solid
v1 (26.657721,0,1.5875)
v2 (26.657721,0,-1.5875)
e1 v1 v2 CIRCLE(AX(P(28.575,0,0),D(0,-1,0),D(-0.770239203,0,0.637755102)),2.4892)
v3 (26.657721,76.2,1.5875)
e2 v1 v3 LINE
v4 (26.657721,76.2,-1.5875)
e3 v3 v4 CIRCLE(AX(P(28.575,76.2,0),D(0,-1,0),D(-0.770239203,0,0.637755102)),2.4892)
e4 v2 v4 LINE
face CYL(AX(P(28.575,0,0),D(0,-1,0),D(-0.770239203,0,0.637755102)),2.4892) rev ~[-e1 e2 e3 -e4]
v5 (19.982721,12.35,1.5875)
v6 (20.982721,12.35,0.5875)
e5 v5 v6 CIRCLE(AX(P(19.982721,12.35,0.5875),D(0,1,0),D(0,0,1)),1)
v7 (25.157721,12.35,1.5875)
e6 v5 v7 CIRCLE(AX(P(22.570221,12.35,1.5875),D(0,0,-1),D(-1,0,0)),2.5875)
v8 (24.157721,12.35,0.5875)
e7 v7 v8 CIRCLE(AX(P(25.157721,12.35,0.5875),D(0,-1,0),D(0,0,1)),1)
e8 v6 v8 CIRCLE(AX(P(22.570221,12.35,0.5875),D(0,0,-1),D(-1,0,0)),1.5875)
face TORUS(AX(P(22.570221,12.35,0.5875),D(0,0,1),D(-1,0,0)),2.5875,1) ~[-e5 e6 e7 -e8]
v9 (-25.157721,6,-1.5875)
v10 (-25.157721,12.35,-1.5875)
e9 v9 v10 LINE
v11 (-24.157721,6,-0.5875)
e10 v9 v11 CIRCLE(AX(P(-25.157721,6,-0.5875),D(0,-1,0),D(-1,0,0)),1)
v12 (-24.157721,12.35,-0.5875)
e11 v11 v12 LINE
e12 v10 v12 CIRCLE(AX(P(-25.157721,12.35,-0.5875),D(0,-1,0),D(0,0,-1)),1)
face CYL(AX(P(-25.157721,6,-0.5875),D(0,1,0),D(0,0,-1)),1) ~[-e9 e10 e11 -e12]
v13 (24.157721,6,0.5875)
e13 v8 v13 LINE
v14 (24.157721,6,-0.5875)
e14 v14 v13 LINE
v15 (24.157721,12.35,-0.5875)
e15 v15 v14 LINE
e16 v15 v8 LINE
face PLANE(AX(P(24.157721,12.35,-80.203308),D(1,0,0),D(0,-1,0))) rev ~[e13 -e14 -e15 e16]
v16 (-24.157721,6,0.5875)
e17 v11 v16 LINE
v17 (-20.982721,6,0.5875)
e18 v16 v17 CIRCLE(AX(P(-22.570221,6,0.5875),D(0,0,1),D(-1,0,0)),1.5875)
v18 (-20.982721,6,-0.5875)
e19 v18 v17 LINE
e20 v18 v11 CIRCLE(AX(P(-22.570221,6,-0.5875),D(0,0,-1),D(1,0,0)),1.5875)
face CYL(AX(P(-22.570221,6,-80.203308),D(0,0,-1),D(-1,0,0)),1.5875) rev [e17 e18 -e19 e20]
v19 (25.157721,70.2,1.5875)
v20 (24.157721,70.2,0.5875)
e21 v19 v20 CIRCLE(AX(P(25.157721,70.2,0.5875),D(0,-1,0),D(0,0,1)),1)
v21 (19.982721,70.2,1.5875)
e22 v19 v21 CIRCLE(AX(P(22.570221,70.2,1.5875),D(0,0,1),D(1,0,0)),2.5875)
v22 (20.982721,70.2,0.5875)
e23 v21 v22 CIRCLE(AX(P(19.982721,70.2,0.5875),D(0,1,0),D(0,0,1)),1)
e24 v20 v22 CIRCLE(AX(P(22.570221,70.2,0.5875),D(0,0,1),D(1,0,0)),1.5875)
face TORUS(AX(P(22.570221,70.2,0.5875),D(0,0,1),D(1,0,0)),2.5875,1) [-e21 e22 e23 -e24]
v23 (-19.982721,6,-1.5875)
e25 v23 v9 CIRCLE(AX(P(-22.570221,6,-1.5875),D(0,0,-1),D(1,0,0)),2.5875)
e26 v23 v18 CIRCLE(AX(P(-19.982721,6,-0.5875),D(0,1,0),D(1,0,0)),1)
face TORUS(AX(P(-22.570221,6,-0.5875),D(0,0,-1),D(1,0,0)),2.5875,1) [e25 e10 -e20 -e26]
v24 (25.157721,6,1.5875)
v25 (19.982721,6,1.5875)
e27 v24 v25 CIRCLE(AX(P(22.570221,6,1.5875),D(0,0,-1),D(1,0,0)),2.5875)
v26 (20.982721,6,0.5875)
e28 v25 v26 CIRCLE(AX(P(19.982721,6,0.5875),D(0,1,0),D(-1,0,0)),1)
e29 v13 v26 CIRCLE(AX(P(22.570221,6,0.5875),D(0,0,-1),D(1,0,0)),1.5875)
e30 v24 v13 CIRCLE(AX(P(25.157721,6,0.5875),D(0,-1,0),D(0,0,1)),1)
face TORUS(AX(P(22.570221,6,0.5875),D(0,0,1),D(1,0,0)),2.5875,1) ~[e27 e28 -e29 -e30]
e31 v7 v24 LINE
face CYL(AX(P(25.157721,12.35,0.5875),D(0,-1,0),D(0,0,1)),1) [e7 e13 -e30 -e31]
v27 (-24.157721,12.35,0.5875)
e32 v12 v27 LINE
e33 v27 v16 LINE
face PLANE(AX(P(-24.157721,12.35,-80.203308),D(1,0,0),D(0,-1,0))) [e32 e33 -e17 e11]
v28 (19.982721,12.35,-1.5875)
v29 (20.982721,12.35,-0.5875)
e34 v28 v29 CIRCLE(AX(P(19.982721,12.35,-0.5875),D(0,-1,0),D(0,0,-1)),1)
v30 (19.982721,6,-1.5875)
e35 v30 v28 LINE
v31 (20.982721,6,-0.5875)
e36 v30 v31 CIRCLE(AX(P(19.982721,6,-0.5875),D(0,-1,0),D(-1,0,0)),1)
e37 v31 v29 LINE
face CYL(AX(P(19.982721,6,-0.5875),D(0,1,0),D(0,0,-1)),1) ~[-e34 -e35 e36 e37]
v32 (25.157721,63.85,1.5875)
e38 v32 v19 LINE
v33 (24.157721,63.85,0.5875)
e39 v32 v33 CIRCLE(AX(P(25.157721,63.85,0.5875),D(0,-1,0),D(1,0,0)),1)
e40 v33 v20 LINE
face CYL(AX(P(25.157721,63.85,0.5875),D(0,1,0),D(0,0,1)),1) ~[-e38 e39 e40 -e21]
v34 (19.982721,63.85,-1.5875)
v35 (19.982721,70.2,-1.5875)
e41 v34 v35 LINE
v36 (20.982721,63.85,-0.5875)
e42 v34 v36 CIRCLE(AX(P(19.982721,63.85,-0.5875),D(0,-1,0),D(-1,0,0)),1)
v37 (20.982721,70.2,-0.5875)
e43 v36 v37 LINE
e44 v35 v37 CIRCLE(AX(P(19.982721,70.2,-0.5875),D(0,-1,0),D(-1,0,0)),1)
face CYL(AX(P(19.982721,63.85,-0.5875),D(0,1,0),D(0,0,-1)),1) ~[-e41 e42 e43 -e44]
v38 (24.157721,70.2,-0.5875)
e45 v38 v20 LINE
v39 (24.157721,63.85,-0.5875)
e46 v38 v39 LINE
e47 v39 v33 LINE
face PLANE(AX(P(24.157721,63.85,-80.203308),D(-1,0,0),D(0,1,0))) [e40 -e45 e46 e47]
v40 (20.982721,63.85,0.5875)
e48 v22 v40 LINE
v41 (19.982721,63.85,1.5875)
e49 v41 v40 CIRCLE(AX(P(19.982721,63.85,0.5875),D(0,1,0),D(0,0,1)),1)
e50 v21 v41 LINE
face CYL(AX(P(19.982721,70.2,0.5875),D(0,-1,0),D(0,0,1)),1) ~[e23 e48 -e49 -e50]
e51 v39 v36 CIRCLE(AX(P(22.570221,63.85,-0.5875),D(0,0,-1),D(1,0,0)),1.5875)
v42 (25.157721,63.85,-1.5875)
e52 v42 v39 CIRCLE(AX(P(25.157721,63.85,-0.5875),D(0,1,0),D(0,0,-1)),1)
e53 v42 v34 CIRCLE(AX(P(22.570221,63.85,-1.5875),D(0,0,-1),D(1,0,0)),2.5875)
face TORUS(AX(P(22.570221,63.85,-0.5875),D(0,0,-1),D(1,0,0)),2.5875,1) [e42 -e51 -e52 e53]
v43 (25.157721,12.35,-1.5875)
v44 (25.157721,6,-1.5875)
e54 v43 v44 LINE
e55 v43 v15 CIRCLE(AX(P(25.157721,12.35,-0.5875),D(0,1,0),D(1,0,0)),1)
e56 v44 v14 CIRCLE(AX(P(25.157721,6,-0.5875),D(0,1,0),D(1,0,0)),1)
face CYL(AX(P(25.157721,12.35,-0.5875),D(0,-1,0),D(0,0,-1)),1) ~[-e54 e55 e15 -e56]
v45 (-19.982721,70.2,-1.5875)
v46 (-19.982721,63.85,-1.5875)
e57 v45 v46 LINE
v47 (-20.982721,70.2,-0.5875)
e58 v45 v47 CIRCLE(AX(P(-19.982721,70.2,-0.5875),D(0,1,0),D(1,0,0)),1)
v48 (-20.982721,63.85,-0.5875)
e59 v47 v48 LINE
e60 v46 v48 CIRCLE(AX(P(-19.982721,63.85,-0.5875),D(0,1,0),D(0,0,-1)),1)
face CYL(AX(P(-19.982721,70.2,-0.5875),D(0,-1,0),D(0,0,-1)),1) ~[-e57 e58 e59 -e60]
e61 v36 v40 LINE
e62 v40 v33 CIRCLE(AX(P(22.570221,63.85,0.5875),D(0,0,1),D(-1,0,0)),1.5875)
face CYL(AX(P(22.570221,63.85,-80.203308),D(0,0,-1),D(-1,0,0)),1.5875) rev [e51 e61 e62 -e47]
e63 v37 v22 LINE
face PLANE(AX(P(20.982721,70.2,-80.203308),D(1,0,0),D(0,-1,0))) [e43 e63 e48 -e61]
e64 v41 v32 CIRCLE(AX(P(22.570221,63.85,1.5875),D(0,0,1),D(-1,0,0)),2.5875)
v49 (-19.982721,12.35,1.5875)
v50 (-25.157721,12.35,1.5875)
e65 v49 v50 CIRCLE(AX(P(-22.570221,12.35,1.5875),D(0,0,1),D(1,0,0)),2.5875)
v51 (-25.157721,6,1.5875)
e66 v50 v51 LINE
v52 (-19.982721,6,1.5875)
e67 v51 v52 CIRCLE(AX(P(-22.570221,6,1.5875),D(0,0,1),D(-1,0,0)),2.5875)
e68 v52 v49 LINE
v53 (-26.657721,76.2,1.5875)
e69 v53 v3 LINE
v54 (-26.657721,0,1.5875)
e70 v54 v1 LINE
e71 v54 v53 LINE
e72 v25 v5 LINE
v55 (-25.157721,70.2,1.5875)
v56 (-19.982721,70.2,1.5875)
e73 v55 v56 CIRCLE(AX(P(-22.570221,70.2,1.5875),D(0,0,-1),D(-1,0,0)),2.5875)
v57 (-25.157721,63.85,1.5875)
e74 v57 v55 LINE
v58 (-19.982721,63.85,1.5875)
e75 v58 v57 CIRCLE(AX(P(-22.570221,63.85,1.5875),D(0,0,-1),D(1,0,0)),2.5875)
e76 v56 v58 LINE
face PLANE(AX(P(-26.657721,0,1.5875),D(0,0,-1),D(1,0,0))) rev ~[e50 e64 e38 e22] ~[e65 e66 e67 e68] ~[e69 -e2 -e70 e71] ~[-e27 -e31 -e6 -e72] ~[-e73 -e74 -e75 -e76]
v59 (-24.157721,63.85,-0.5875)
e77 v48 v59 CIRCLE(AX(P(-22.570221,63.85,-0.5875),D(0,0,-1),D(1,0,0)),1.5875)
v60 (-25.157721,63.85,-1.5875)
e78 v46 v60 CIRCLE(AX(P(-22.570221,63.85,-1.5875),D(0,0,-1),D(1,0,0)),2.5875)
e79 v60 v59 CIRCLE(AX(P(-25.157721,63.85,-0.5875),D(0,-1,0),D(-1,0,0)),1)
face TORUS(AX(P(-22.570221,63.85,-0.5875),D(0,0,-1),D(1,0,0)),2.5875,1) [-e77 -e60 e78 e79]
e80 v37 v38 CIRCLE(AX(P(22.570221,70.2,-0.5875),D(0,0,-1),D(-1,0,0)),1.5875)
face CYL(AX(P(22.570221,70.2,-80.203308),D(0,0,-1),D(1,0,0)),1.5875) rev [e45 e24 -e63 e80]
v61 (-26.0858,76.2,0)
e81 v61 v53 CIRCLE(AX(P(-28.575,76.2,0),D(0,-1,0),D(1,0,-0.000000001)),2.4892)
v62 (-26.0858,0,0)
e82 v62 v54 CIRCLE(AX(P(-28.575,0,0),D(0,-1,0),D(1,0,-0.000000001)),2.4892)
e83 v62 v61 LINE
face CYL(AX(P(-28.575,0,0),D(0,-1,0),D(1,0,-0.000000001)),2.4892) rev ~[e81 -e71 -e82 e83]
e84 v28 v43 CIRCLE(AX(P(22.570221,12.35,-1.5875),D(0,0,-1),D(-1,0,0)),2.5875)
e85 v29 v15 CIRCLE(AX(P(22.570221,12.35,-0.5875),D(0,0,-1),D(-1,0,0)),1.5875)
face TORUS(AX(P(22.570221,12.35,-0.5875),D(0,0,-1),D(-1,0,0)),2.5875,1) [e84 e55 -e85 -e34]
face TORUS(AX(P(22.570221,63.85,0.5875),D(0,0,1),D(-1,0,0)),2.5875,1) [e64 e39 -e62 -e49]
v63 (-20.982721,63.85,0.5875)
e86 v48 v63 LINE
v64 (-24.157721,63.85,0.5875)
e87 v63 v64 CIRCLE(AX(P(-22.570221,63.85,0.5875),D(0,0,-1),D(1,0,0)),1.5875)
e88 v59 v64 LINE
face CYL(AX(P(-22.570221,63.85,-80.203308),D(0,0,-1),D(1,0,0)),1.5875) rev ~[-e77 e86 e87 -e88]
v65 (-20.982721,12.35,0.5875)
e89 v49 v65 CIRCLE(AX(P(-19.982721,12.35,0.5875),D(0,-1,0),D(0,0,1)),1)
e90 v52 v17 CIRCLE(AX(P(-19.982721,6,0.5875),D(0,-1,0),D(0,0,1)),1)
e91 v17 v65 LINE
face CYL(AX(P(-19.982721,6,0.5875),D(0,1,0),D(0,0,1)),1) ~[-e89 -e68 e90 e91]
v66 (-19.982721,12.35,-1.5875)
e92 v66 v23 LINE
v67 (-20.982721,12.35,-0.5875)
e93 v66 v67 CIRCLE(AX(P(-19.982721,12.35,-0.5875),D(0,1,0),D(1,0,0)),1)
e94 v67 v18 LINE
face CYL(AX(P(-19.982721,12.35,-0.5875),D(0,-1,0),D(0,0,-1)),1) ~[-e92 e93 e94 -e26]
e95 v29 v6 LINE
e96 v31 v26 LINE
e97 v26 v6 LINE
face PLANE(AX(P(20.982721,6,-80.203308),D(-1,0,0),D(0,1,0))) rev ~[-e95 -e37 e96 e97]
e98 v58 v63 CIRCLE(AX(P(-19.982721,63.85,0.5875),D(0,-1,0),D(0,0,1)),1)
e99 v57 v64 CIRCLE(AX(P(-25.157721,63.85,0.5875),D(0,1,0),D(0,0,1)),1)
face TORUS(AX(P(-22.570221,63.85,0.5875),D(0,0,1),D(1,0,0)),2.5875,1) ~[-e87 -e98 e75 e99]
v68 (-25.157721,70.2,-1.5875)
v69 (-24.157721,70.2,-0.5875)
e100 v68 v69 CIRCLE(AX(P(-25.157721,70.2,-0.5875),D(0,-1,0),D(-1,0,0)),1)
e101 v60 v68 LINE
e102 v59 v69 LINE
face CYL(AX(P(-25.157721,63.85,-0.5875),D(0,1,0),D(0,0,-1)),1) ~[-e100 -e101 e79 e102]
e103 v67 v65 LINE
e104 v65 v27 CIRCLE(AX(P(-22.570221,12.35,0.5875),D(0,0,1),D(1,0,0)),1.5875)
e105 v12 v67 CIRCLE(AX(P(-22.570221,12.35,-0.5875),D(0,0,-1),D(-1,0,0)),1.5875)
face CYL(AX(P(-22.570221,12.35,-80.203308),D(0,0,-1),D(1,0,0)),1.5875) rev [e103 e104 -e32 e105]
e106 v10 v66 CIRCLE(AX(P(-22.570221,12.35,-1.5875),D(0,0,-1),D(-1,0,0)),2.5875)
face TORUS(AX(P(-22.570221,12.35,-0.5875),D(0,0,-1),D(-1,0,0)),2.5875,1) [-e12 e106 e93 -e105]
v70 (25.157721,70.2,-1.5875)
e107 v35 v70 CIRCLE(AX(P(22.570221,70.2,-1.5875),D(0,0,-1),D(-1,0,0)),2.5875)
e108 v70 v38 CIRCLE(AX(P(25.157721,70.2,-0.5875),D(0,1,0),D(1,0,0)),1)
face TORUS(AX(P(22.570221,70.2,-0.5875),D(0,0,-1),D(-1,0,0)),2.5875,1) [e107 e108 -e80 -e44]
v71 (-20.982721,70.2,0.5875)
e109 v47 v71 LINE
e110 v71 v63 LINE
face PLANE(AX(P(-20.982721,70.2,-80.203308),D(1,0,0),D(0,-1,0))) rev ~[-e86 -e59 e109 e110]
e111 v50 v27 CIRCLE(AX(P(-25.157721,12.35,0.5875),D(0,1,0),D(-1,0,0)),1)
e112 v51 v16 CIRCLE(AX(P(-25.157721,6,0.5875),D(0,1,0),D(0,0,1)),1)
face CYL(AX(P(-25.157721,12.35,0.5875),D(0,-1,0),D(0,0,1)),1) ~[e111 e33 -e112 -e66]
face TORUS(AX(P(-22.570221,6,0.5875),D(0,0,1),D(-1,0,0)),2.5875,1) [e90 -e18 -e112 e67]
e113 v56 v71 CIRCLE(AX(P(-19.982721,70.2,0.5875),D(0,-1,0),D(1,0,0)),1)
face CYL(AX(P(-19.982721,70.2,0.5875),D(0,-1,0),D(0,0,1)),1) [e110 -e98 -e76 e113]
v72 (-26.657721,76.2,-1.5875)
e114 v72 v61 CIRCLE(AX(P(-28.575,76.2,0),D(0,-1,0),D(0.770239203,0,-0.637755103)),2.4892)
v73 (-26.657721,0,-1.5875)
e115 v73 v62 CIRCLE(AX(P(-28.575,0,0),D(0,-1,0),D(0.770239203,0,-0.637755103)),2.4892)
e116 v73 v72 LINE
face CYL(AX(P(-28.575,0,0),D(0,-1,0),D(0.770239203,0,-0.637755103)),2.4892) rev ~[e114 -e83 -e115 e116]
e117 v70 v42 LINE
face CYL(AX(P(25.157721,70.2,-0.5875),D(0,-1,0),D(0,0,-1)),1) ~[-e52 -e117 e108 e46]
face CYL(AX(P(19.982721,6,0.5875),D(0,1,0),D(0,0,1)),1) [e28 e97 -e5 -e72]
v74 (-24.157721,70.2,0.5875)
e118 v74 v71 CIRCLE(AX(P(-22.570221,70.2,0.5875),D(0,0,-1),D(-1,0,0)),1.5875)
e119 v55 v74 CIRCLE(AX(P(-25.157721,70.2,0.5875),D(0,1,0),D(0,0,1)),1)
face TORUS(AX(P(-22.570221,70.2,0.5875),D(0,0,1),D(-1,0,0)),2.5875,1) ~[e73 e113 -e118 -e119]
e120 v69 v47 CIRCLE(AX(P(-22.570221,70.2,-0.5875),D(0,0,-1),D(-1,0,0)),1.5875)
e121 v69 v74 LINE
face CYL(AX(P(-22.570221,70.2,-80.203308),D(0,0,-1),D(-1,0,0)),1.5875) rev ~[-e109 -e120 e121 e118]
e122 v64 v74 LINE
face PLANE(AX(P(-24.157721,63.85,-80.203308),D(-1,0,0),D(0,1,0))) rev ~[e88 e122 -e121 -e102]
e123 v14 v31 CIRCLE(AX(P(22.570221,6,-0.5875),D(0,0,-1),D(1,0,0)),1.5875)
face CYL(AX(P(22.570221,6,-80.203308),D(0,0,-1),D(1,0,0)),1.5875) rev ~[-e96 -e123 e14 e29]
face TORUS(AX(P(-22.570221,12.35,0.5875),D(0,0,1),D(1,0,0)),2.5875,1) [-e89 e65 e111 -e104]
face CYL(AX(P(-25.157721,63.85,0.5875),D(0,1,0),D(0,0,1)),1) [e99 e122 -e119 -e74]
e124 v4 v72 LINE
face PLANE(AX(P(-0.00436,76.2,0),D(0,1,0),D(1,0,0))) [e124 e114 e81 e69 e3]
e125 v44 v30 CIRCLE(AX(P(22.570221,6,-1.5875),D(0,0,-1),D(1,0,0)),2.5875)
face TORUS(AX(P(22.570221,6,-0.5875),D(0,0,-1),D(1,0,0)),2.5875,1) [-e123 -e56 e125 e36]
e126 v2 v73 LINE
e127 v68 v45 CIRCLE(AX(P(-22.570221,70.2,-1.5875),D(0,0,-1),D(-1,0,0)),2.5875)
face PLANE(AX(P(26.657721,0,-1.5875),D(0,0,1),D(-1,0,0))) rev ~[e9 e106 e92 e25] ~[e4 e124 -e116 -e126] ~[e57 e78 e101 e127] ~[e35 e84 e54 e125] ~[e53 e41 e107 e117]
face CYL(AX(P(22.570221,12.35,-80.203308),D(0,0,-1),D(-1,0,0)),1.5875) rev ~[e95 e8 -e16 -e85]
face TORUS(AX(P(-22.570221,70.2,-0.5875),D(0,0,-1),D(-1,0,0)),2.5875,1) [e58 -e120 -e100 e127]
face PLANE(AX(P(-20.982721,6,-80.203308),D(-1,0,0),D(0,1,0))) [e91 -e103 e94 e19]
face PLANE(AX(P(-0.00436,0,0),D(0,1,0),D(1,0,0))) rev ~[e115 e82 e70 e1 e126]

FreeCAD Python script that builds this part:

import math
import FreeCAD as App
import Part
import Sketcher

V = App.Vector
Q = App.Units.Quantity


def edges_at(feature, points):
    """Names of the edges that pass closest to the given points."""
    edges = feature.Shape.Edges
    near = lambda p: min(range(len(edges)), key=lambda i: edges[i].distToShape(Part.Vertex(*p))[0])
    return sorted({f"Edge{near(p) + 1}" for p in points})

doc = App.newDocument("Part")
body = doc.addObject("PartDesign::Body", "Body")

# Sketch on XZ plane
sketch1 = body.newObject("Sketcher::SketchObject", "Sketch")
sketch1.AttachmentSupport = (doc.getObject("XZ_Plane"), [""])
sketch1.MapMode = "FlatFace"
sketch1.addGeometry([
    Part.ArcOfCircle(Part.Circle(V(-28.6, 0, 0), V(0, 0, 1), 2.5), math.radians(0), math.radians(40)),  # 0
    Part.LineSegment(V(-26.7, 1.6, 0), V(26.7, 1.6, 0)),  # 1
    Part.ArcOfCircle(Part.Circle(V(28.6, 0, 0), V(0, 0, 1), 2.5), math.radians(140), math.radians(220)),  # 2
    Part.LineSegment(V(26.7, -1.6, 0), V(-26.7, -1.6, 0)),  # 3
    Part.ArcOfCircle(Part.Circle(V(-28.6, 0, 0), V(0, 0, 1), 2.5), math.radians(-40), math.radians(0)),  # 4
], False)
sketch1.addConstraint([
    Sketcher.Constraint("Coincident", 0, 2, 1, 1),
    Sketcher.Constraint("Coincident", 1, 2, 2, 1),
    Sketcher.Constraint("Coincident", 2, 2, 3, 1),
    Sketcher.Constraint("Coincident", 3, 2, 4, 1),
    Sketcher.Constraint("Tangent", 4, 2, 0, 1),
    Sketcher.Constraint("Horizontal", 1),
    Sketcher.Constraint("Horizontal", 3),
    Sketcher.Constraint("Equal", 0, 2),
    Sketcher.Constraint("Equal", 2, 4),
    Sketcher.Constraint("Symmetric", 0, 3, 2, 3, -1, 1),
    Sketcher.Constraint("Symmetric", 1, 2, 2, 2, -1),
    Sketcher.Constraint("PointOnObject", 4, 2, -1),
    Sketcher.Constraint("Radius", 0, Q("0.098 in")),
    Sketcher.Constraint("DistanceX", 0, 3, 2, 3, Q("2.25 in")),
    Sketcher.Constraint("DistanceY", -1, 1, 0, 2, Q("0.0625 in")),
])
pad1 = body.newObject("PartDesign::Pad", "Pad")
pad1.Profile = sketch1
pad1.Length = Q("3 in")
pad1.Reversed = True

# Sketch on XY plane
sketch2 = body.newObject("Sketcher::SketchObject", "Sketch001")
sketch2.AttachmentSupport = (doc.getObject("XY_Plane"), [""])
sketch2.MapMode = "FlatFace"
sketch2.AttachmentOffset = App.Placement(V(0, 0, 0.0625 * 25.4), App.Rotation())
sketch2.addGeometry([
    Part.LineSegment(V(-21, 63.9, 0), V(-21, 70.2, 0)),  # 0
    Part.ArcOfCircle(Part.Circle(V(-22.6, 70.2, 0), V(0, 0, 1), 1.6), math.radians(0), math.radians(180)),  # 1
    Part.LineSegment(V(-24.2, 70.2, 0), V(-24.2, 63.9, 0)),  # 2
    Part.ArcOfCircle(Part.Circle(V(-22.6, 63.9, 0), V(0, 0, 1), 1.6), math.radians(180), math.radians(360)),  # 3
    Part.LineSegment(V(21, 70.2, 0), V(21, 63.9, 0)),  # 4
    Part.ArcOfCircle(Part.Circle(V(22.6, 63.9, 0), V(0, 0, 1), 1.6), math.radians(180), math.radians(360)),  # 5
    Part.LineSegment(V(24.2, 63.9, 0), V(24.2, 70.2, 0)),  # 6
    Part.ArcOfCircle(Part.Circle(V(22.6, 70.2, 0), V(0, 0, 1), 1.6), math.radians(0), math.radians(180)),  # 7
    Part.LineSegment(V(21, 12.3, 0), V(21, 6, 0)),  # 8
    Part.ArcOfCircle(Part.Circle(V(22.6, 6, 0), V(0, 0, 1), 1.6), math.radians(180), math.radians(360)),  # 9
    Part.LineSegment(V(24.2, 6, 0), V(24.2, 12.3, 0)),  # 10
    Part.ArcOfCircle(Part.Circle(V(22.6, 12.3, 0), V(0, 0, 1), 1.6), math.radians(0), math.radians(180)),  # 11
    Part.LineSegment(V(-21, 6, 0), V(-21, 12.3, 0)),  # 12
    Part.ArcOfCircle(Part.Circle(V(-22.6, 12.3, 0), V(0, 0, 1), 1.6), math.radians(0), math.radians(180)),  # 13
    Part.LineSegment(V(-24.2, 12.3, 0), V(-24.2, 6, 0)),  # 14
    Part.ArcOfCircle(Part.Circle(V(-22.6, 6, 0), V(0, 0, 1), 1.6), math.radians(180), math.radians(360)),  # 15
], False)
sketch2.addConstraint([
    Sketcher.Constraint("Tangent", 0, 2, 1, 1),
    Sketcher.Constraint("Tangent", 1, 2, 2, 1),
    Sketcher.Constraint("Tangent", 2, 2, 3, 1),
    Sketcher.Constraint("Tangent", 3, 2, 0, 1),
    Sketcher.Constraint("Tangent", 4, 2, 5, 1),
    Sketcher.Constraint("Tangent", 5, 2, 6, 1),
    Sketcher.Constraint("Tangent", 6, 2, 7, 1),
    Sketcher.Constraint("Tangent", 7, 2, 4, 1),
    Sketcher.Constraint("Tangent", 8, 2, 9, 1),
    Sketcher.Constraint("Tangent", 9, 2, 10, 1),
    Sketcher.Constraint("Tangent", 10, 2, 11, 1),
    Sketcher.Constraint("Tangent", 11, 2, 8, 1),
    Sketcher.Constraint("Tangent", 12, 2, 13, 1),
    Sketcher.Constraint("Tangent", 13, 2, 14, 1),
    Sketcher.Constraint("Tangent", 14, 2, 15, 1),
    Sketcher.Constraint("Tangent", 15, 2, 12, 1),
    Sketcher.Constraint("Vertical", 0),
    Sketcher.Constraint("Vertical", 2),
    Sketcher.Constraint("Vertical", 4),
    Sketcher.Constraint("Vertical", 6),
    Sketcher.Constraint("Vertical", 8),
    Sketcher.Constraint("Vertical", 10),
    Sketcher.Constraint("Vertical", 12),
    Sketcher.Constraint("Vertical", 14),
    Sketcher.Constraint("Equal", 3, 5),
    Sketcher.Constraint("Equal", 7, 9),
    Sketcher.Constraint("Equal", 11, 13),
    Sketcher.Constraint("Symmetric", 3, 3, 5, 3, -2),
    Sketcher.Constraint("Symmetric", 11, 3, 13, 3, -2),
    Sketcher.Constraint("Horizontal", 1, 3, 7, 3),
    Sketcher.Constraint("Horizontal", 9, 3, 15, 3),
    Sketcher.Constraint("Vertical", 7, 3, 9, 3),
    Sketcher.Constraint("Equal", 6, 8),
    Sketcher.Constraint("Radius", 1, Q("0.0625 in")),
    Sketcher.Constraint("DistanceY", 0, 1, 0, 2, Q("0.25 in")),
    Sketcher.Constraint("DistanceY", -1, 1, 1, 3, Q("70.2 mm")),
    Sketcher.Constraint("DistanceY", -1, 1, 9, 3, Q("6 mm")),
    Sketcher.Constraint("DistanceX", 1, 3, -1, 1, Q("22.570221 mm")),
])
pocket1 = body.newObject("PartDesign::Pocket", "Pocket")
pocket1.Profile = sketch2
pocket1.Type = "ThroughAll"
pocket1.Midplane = True
doc.recompute()

fillet = body.newObject("PartDesign::Fillet", "Fillet")
fillet.Base = (pocket1, edges_at(pocket1, [
    (-24.158, 67.025, 1.587),
    (-22.57, 62.263, 1.587),
    (-20.983, 67.025, 1.587),
    (-22.57, 71.787, 1.587),
    (20.983, 67.025, 1.587),
    (22.57, 62.263, 1.587),
    (24.158, 67.025, 1.587),
    (22.57, 71.787, 1.587),
    (24.158, 9.175, 1.587),
    (22.57, 13.938, 1.587),
    (20.983, 9.175, 1.587),
    (22.57, 4.412, 1.587),
    (-20.983, 9.175, 1.587),
    (-22.57, 13.938, 1.587),
    (-24.158, 9.175, 1.587),
    (-22.57, 4.412, 1.587),
    (-22.57, 4.412, -1.587),
    (-24.158, 9.175, -1.587),
    (-22.57, 13.938, -1.587),
    (-20.983, 9.175, -1.587),
    (22.57, 4.412, -1.587),
    (20.983, 9.175, -1.587),
    (22.57, 13.938, -1.587),
    (24.158, 9.175, -1.587),
    (22.57, 71.787, -1.587),
    (24.158, 67.025, -1.587),
    (22.57, 62.263, -1.587),
    (20.983, 67.025, -1.587),
    (-22.57, 71.787, -1.587),
    (-20.983, 67.025, -1.587),
    (-22.57, 62.263, -1.587),
    (-24.158, 67.025, -1.587),
]))
fillet.Radius = 1

doc.recompute()
